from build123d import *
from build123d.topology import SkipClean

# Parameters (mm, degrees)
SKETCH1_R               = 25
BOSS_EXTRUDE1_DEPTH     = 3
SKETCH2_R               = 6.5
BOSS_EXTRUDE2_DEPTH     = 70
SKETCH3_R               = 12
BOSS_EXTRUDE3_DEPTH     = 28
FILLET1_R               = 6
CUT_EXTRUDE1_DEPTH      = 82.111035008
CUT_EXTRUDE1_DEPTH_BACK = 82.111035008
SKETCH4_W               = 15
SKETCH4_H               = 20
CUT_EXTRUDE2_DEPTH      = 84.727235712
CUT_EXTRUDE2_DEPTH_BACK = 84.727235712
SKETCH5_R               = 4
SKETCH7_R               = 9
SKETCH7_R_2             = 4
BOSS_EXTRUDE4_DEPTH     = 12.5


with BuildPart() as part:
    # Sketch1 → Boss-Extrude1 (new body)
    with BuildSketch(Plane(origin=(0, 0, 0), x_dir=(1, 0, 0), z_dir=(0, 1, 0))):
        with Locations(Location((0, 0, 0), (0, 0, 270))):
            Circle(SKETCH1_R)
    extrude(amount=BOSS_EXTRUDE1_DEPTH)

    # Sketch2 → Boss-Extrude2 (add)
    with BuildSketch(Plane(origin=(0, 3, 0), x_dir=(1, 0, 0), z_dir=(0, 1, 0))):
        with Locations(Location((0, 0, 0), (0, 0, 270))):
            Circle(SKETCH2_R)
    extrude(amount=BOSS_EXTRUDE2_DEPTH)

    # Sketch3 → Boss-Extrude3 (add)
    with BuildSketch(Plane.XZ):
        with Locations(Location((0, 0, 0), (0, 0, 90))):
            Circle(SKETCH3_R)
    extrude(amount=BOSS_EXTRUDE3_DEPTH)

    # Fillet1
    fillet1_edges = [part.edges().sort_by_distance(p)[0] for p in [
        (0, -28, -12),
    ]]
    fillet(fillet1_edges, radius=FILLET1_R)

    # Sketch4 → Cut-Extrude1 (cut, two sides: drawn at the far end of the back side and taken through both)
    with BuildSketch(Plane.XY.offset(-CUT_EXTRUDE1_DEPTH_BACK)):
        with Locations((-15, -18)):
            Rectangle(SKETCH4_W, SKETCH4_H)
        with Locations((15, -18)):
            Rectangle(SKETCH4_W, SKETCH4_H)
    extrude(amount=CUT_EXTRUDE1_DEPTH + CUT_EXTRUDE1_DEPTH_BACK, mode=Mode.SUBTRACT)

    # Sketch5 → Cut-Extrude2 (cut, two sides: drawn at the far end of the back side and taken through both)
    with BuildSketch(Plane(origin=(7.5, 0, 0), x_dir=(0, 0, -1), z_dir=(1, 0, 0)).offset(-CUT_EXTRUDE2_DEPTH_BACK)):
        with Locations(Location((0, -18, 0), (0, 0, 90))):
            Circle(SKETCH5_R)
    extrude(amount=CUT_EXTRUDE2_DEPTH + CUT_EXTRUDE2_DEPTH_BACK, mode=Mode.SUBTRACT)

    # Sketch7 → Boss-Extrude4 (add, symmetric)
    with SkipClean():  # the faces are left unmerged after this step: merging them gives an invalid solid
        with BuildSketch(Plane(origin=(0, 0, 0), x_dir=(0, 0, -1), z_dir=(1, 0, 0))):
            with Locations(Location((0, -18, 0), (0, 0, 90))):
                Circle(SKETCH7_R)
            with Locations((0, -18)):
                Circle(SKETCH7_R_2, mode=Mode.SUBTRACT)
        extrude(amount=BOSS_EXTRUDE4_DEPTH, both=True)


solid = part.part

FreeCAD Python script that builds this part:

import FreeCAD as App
import Part
import Sketcher


def edges_at(feature, points):
    """Names of the edges that pass closest to the given points."""
    edges = feature.Shape.Edges
    near = lambda p: min(range(len(edges)), key=lambda i: edges[i].distToShape(Part.Vertex(*p))[0])
    return sorted({f"Edge{near(p) + 1}" for p in points})


def add_polygon(sketch, points):
    """Adds a closed chain of lines whose ends are joined by coincident constraints."""
    first, n = sketch.GeometryCount, len(points)
    for a, b in zip(points, points[1:] + points[:1]):
        sketch.addGeometry(Part.LineSegment(App.Vector(*a, 0), App.Vector(*b, 0)), False)
    for i in range(n):
        sketch.addConstraint(Sketcher.Constraint("Coincident", first + i, 2, first + (i + 1) % n, 1))

doc = App.newDocument("Part")
body = doc.addObject("PartDesign::Body", "Body")

# Sketch on XZ plane
sketch1 = doc.addObject("Sketcher::SketchObject", "Sketch")
body.addObject(sketch1)
sketch1.AttachmentSupport = (doc.XZ_Plane, [""])
sketch1.MapMode = "FlatFace"
sketch1.addGeometry(Part.Circle(App.Vector(0, 0, 0), App.Vector(0, 0, 1), 25), False)
sketch1.addConstraint([
    Sketcher.Constraint("Coincident", 0, 3, -1, 1),
    Sketcher.Constraint("Diameter", 0, 50.0),
])
pad1 = doc.addObject("PartDesign::Pad", "Pad")
body.addObject(pad1)
pad1.Profile = sketch1
pad1.Length = 3
pad1.Reversed = True

# Sketch on XZ plane
sketch2 = doc.addObject("Sketcher::SketchObject", "Sketch001")
body.addObject(sketch2)
sketch2.AttachmentSupport = (doc.XZ_Plane, [""])
sketch2.MapMode = "FlatFace"
sketch2.AttachmentOffset = App.Placement(App.Vector(0, 0, -3), App.Rotation())
sketch2.addGeometry(Part.Circle(App.Vector(0, 0, 0), App.Vector(0, 0, 1), 6), False)
sketch2.addConstraint([
    Sketcher.Constraint("Coincident", 0, 3, -1, 1),
    Sketcher.Constraint("Diameter", 0, 13.0),
])
pad2 = doc.addObject("PartDesign::Pad", "Pad001")
body.addObject(pad2)
pad2.Profile = sketch2
pad2.Length = 70
pad2.Reversed = True

# Sketch on XZ plane
sketch3 = doc.addObject("Sketcher::SketchObject", "Sketch002")
body.addObject(sketch3)
sketch3.AttachmentSupport = (doc.XZ_Plane, [""])
sketch3.MapMode = "FlatFace"
sketch3.addGeometry(Part.Circle(App.Vector(0, 0, 0), App.Vector(0, 0, 1), 12), False)
sketch3.addConstraint([
    Sketcher.Constraint("Coincident", 0, 3, -1, 1),
    Sketcher.Constraint("Diameter", 0, 24.0),
])
pad3 = doc.addObject("PartDesign::Pad", "Pad002")
body.addObject(pad3)
pad3.Profile = sketch3
pad3.Length = 28
doc.recompute()

fillet = doc.addObject("PartDesign::Fillet", "Fillet")
body.addObject(fillet)
fillet.Base = (pad3, edges_at(pad3, [(0, -28, -12)]))
fillet.Radius = 6

# Sketch on XY plane
sketch4 = doc.addObject("Sketcher::SketchObject", "Sketch003")
body.addObject(sketch4)
sketch4.AttachmentSupport = (doc.XY_Plane, [""])
sketch4.MapMode = "FlatFace"
add_polygon(sketch4, [(-22, -8), (-22, -28), (-8, -28), (-8, -8)])  # lines 0-3
add_polygon(sketch4, [(8, -8), (8, -28), (22, -28), (22, -8)])  # lines 4-7
sketch4.addConstraint([
    Sketcher.Constraint("Vertical", 0),
    Sketcher.Constraint("Horizontal", 1),
    Sketcher.Constraint("Vertical", 2),
    Sketcher.Constraint("Horizontal", 3),
    Sketcher.Constraint("Vertical", 4),
    Sketcher.Constraint("Horizontal", 5),
    Sketcher.Constraint("Vertical", 6),
    Sketcher.Constraint("Horizontal", 7),
    Sketcher.Constraint("Symmetric", 1, 2, 4, 2, -2),
    Sketcher.Constraint("Symmetric", 3, 2, 6, 2, -2),
    Sketcher.Constraint("DistanceX", 1, 1, 1, 2, 15.0),
    Sketcher.Constraint("DistanceY", 0, 2, 0, 1, 20.0),
    Sketcher.Constraint("DistanceY", 0, 2, -1, 1, 28.0),
    Sketcher.Constraint("DistanceX", 1, 2, 4, 2, 15.0),
])
pocket1 = doc.addObject("PartDesign::Pocket", "Pocket")
body.addObject(pocket1)
pocket1.Profile = sketch4
pocket1.Type = "ThroughAll"
pocket1.Midplane = True

# Sketch on YZ plane
sketch5 = doc.addObject("Sketcher::SketchObject", "Sketch004")
body.addObject(sketch5)
sketch5.AttachmentSupport = (doc.YZ_Plane, [""])
sketch5.MapMode = "FlatFace"
sketch5.AttachmentOffset = App.Placement(App.Vector(0, 0, 7.5), App.Rotation())
sketch5.addGeometry(Part.Circle(App.Vector(-18, 0, 0), App.Vector(0, 0, 1), 4), False)
sketch5.addConstraint([
    Sketcher.Constraint("PointOnObject", 0, 3, -1),
    Sketcher.Constraint("Diameter", 0, 8.0),
    Sketcher.Constraint("DistanceX", 0, 3, -1, 1, 18.0),
])
pocket2 = doc.addObject("PartDesign::Pocket", "Pocket001")
body.addObject(pocket2)
pocket2.Profile = sketch5
pocket2.Type = "ThroughAll"
pocket2.Midplane = True

# Sketch on YZ plane
sketch6 = doc.addObject("Sketcher::SketchObject", "Sketch005")
body.addObject(sketch6)
sketch6.AttachmentSupport = (doc.YZ_Plane, [""])
sketch6.MapMode = "FlatFace"
sketch6.addGeometry([
    Part.Circle(App.Vector(-18, 0, 0), App.Vector(0, 0, 1), 9),
    Part.Circle(App.Vector(-18, 0, 0), App.Vector(0, 0, 1), 4),
], False)
sketch6.addConstraint([
    Sketcher.Constraint("Coincident", 1, 3, 0, 3),
    Sketcher.Constraint("PointOnObject", 0, 3, -1),
    Sketcher.Constraint("Diameter", 0, 18.0),
    Sketcher.Constraint("Diameter", 1, 8.0),
    Sketcher.Constraint("DistanceX", 0, 3, -1, 1, 18.0),
])
pad4 = doc.addObject("PartDesign::Pad", "Pad003")
body.addObject(pad4)
pad4.Profile = sketch6
pad4.Length = 25
pad4.Midplane = True

doc.recompute()
